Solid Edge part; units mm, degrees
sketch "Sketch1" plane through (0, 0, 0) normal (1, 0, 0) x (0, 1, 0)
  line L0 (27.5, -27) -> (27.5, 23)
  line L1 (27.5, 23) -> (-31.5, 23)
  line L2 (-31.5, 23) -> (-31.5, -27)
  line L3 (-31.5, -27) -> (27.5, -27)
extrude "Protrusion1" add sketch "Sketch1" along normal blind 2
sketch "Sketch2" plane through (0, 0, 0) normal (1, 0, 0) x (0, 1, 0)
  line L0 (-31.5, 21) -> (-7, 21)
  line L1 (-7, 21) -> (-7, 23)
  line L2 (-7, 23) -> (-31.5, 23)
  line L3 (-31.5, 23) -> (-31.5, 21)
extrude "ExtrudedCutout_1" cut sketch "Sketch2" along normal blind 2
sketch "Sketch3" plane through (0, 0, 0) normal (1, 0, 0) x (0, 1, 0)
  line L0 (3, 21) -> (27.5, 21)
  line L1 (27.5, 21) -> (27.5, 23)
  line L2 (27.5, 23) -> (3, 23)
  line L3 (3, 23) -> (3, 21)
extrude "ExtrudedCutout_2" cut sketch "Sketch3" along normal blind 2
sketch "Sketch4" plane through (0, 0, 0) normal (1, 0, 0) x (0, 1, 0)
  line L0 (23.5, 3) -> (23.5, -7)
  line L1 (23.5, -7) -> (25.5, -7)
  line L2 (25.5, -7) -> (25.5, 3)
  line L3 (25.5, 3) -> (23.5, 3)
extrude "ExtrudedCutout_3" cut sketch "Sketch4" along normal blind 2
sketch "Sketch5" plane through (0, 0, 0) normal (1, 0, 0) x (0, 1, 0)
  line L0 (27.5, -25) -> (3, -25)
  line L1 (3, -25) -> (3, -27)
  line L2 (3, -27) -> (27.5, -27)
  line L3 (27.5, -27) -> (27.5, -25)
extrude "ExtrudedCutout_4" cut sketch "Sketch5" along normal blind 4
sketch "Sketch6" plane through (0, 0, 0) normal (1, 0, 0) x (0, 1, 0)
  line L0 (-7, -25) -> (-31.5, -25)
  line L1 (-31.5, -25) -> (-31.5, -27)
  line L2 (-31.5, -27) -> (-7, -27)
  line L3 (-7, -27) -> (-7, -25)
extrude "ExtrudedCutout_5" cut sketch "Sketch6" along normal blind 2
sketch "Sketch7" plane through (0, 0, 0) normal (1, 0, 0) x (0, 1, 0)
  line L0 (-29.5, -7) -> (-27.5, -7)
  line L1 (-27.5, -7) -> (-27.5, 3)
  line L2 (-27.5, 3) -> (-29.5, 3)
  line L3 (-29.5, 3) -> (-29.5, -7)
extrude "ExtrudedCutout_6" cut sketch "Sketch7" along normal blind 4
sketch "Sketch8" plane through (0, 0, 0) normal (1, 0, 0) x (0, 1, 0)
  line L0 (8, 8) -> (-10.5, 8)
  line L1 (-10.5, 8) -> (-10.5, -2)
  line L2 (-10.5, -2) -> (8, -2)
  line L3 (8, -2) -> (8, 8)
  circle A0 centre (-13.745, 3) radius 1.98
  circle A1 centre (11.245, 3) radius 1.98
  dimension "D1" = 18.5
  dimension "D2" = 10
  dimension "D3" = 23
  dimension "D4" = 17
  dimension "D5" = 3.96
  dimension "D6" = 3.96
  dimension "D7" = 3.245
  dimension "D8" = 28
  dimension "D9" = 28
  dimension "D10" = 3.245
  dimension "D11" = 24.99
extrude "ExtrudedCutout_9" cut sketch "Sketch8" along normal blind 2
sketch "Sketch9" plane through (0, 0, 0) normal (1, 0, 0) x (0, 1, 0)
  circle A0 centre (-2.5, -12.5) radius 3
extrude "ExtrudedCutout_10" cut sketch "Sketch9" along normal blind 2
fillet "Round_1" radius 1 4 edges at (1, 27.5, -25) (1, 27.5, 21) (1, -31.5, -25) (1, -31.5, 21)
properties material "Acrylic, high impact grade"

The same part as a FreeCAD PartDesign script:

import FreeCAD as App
import Part
import Sketcher

V = App.Vector
Q = App.Units.Quantity


def edges_at(feature, points):
    """Names of the edges that pass closest to the given points."""
    edges = feature.Shape.Edges
    near = lambda p: min(range(len(edges)), key=lambda i: edges[i].distToShape(Part.Vertex(*p))[0])
    return sorted({f"Edge{near(p) + 1}" for p in points})

doc = App.newDocument("Part")
params = doc.addObject("Spreadsheet::Sheet", "Params")
for row, (alias, value) in enumerate([
    ("sketch1_width", "59 mm"),
    ("sketch1_height", "50 mm"),
    ("pad1_length", "2 mm"),
    ("sketch2_height", "2 mm"),
    ("sketch2_width", "24.5 mm"),
    ("pocket1_length", "2 mm"),
    ("sketch3_height", "2 mm"),
    ("sketch3_width", "24.5 mm"),
    ("pocket2_length", "2 mm"),
    ("sketch4_width", "2 mm"),
    ("sketch4_height", "10 mm"),
    ("pocket3_length", "2 mm"),
    ("sketch5_height", "2 mm"),
    ("sketch5_width", "24.5 mm"),
    ("pocket4_length", "4 mm"),
    ("sketch6_height", "2 mm"),
    ("sketch6_width", "24.5 mm"),
    ("pocket5_length", "2 mm"),
    ("sketch7_width", "2 mm"),
    ("sketch7_height", "10 mm"),
    ("pocket6_length", "4 mm"),
    ("sketch8_diameter", "3.96 mm"),
    ("sketch8_height", "10 mm"),
    ("sketch8_width", "18.5 mm"),
    ("pocket7_length", "2 mm"),
    ("sketch9_diameter", "6 mm"),
    ("pocket8_length", "2 mm"),
    ("fillet_radius", "1 mm"),
], start=1):
    params.set(f"A{row}", alias)
    params.set(f"B{row}", "=" + value)
    params.setAlias(f"B{row}", alias)

body = doc.addObject("PartDesign::Body", "Body")

sketch1 = doc.addObject("Sketcher::SketchObject", "Sketch")
body.addObject(sketch1)
sketch1.AttachmentSupport = (doc.YZ_Plane, [""])
sketch1.MapMode = "FlatFace"
sketch1.addGeometry([
    Part.LineSegment(V(-31.5, -27, 0), V(27.5, -27, 0)),
    Part.LineSegment(V(27.5, -27, 0), V(27.5, 23, 0)),
    Part.LineSegment(V(27.5, 23, 0), V(-31.5, 23, 0)),
    Part.LineSegment(V(-31.5, 23, 0), V(-31.5, -27, 0)),
], False)
sketch1.addConstraint([
    Sketcher.Constraint("Coincident", 0, 2, 1, 1),
    Sketcher.Constraint("Coincident", 1, 2, 2, 1),
    Sketcher.Constraint("Coincident", 2, 2, 3, 1),
    Sketcher.Constraint("Coincident", 3, 2, 0, 1),
    Sketcher.Constraint("Horizontal", 0),
    Sketcher.Constraint("Vertical", 1),
    Sketcher.Constraint("Horizontal", 2),
    Sketcher.Constraint("Vertical", 3),
    Sketcher.Constraint("DistanceX", 0, 1, 0, 2, Q("59 mm")),
    Sketcher.Constraint("DistanceY", 1, 1, 1, 2, Q("50 mm")),
    Sketcher.Constraint("DistanceY", 0, 2, -1, 1, Q("27 mm")),
    Sketcher.Constraint("DistanceX", -1, 1, 0, 2, Q("27.5 mm")),
])
sketch1.setExpression("Constraints[8]", "Params.sketch1_width")
sketch1.setExpression("Constraints[9]", "Params.sketch1_height")
pad1 = doc.addObject("PartDesign::Pad", "Pad")
body.addObject(pad1)
pad1.Profile = sketch1
pad1.setExpression("Length", "Params.pad1_length")

sketch2 = doc.addObject("Sketcher::SketchObject", "Sketch001")
body.addObject(sketch2)
sketch2.AttachmentSupport = (doc.YZ_Plane, [""])
sketch2.MapMode = "FlatFace"
sketch2.addGeometry([
    Part.LineSegment(V(-31.5, 23, 0), V(-31.5, 21, 0)),
    Part.LineSegment(V(-31.5, 21, 0), V(-7, 21, 0)),
    Part.LineSegment(V(-7, 21, 0), V(-7, 23, 0)),
    Part.LineSegment(V(-7, 23, 0), V(-31.5, 23, 0)),
], False)
sketch2.addConstraint([
    Sketcher.Constraint("Coincident", 0, 2, 1, 1),
    Sketcher.Constraint("Coincident", 1, 2, 2, 1),
    Sketcher.Constraint("Coincident", 2, 2, 3, 1),
    Sketcher.Constraint("Coincident", 3, 2, 0, 1),
    Sketcher.Constraint("Vertical", 0),
    Sketcher.Constraint("Horizontal", 1),
    Sketcher.Constraint("Vertical", 2),
    Sketcher.Constraint("Horizontal", 3),
    Sketcher.Constraint("DistanceY", 0, 2, 0, 1, Q("2 mm")),
    Sketcher.Constraint("DistanceX", 1, 1, 1, 2, Q("24.5 mm")),
    Sketcher.Constraint("DistanceY", -1, 1, 0, 2, Q("21 mm")),
    Sketcher.Constraint("DistanceX", 1, 2, -1, 1, Q("7 mm")),
])
sketch2.setExpression("Constraints[8]", "Params.sketch2_height")
sketch2.setExpression("Constraints[9]", "Params.sketch2_width")
pocket1 = doc.addObject("PartDesign::Pocket", "Pocket")
body.addObject(pocket1)
pocket1.Profile = sketch2
pocket1.setExpression("Length", "Params.pocket1_length")
pocket1.Reversed = True

sketch3 = doc.addObject("Sketcher::SketchObject", "Sketch002")
body.addObject(sketch3)
sketch3.AttachmentSupport = (doc.YZ_Plane, [""])
sketch3.MapMode = "FlatFace"
sketch3.addGeometry([
    Part.LineSegment(V(3, 23, 0), V(3, 21, 0)),
    Part.LineSegment(V(3, 21, 0), V(27.5, 21, 0)),
    Part.LineSegment(V(27.5, 21, 0), V(27.5, 23, 0)),
    Part.LineSegment(V(27.5, 23, 0), V(3, 23, 0)),
], False)
sketch3.addConstraint([
    Sketcher.Constraint("Coincident", 0, 2, 1, 1),
    Sketcher.Constraint("Coincident", 1, 2, 2, 1),
    Sketcher.Constraint("Coincident", 2, 2, 3, 1),
    Sketcher.Constraint("Coincident", 3, 2, 0, 1),
    Sketcher.Constraint("Vertical", 0),
    Sketcher.Constraint("Horizontal", 1),
    Sketcher.Constraint("Vertical", 2),
    Sketcher.Constraint("Horizontal", 3),
    Sketcher.Constraint("DistanceY", 0, 2, 0, 1, Q("2 mm")),
    Sketcher.Constraint("DistanceX", 1, 1, 1, 2, Q("24.5 mm")),
    Sketcher.Constraint("DistanceX", -1, 1, 0, 2, Q("3 mm")),
    Sketcher.Constraint("DistanceY", -1, 1, 0, 2, Q("21 mm")),
])
sketch3.setExpression("Constraints[8]", "Params.sketch3_height")
sketch3.setExpression("Constraints[9]", "Params.sketch3_width")
pocket2 = doc.addObject("PartDesign::Pocket", "Pocket001")
body.addObject(pocket2)
pocket2.Profile = sketch3
pocket2.setExpression("Length", "Params.pocket2_length")
pocket2.Reversed = True

sketch4 = doc.addObject("Sketcher::SketchObject", "Sketch003")
body.addObject(sketch4)
sketch4.AttachmentSupport = (doc.YZ_Plane, [""])
sketch4.MapMode = "FlatFace"
sketch4.addGeometry([
    Part.LineSegment(V(25.5, 3, 0), V(23.5, 3, 0)),
    Part.LineSegment(V(23.5, 3, 0), V(23.5, -7, 0)),
    Part.LineSegment(V(23.5, -7, 0), V(25.5, -7, 0)),
    Part.LineSegment(V(25.5, -7, 0), V(25.5, 3, 0)),
], False)
sketch4.addConstraint([
    Sketcher.Constraint("Coincident", 0, 2, 1, 1),
    Sketcher.Constraint("Coincident", 1, 2, 2, 1),
    Sketcher.Constraint("Coincident", 2, 2, 3, 1),
    Sketcher.Constraint("Coincident", 3, 2, 0, 1),
    Sketcher.Constraint("Horizontal", 0),
    Sketcher.Constraint("Vertical", 1),
    Sketcher.Constraint("Horizontal", 2),
    Sketcher.Constraint("Vertical", 3),
    Sketcher.Constraint("DistanceX", 0, 2, 0, 1, Q("2 mm")),
    Sketcher.Constraint("DistanceY", 1, 2, 1, 1, Q("10 mm")),
    Sketcher.Constraint("DistanceY", -1, 1, 0, 2, Q("3 mm")),
    Sketcher.Constraint("DistanceX", -1, 1, 0, 2, Q("23.5 mm")),
])
sketch4.setExpression("Constraints[8]", "Params.sketch4_width")
sketch4.setExpression("Constraints[9]", "Params.sketch4_height")
pocket3 = doc.addObject("PartDesign::Pocket", "Pocket002")
body.addObject(pocket3)
pocket3.Profile = sketch4
pocket3.setExpression("Length", "Params.pocket3_length")
pocket3.Reversed = True

sketch5 = doc.addObject("Sketcher::SketchObject", "Sketch004")
body.addObject(sketch5)
sketch5.AttachmentSupport = (doc.YZ_Plane, [""])
sketch5.MapMode = "FlatFace"
sketch5.addGeometry([
    Part.LineSegment(V(27.5, -27, 0), V(27.5, -25, 0)),
    Part.LineSegment(V(27.5, -25, 0), V(3, -25, 0)),
    Part.LineSegment(V(3, -25, 0), V(3, -27, 0)),
    Part.LineSegment(V(3, -27, 0), V(27.5, -27, 0)),
], False)
sketch5.addConstraint([
    Sketcher.Constraint("Coincident", 0, 2, 1, 1),
    Sketcher.Constraint("Coincident", 1, 2, 2, 1),
    Sketcher.Constraint("Coincident", 2, 2, 3, 1),
    Sketcher.Constraint("Coincident", 3, 2, 0, 1),
    Sketcher.Constraint("Vertical", 0),
    Sketcher.Constraint("Horizontal", 1),
    Sketcher.Constraint("Vertical", 2),
    Sketcher.Constraint("Horizontal", 3),
    Sketcher.Constraint("DistanceY", 0, 1, 0, 2, Q("2 mm")),
    Sketcher.Constraint("DistanceX", 1, 2, 1, 1, Q("24.5 mm")),
    Sketcher.Constraint("DistanceY", 0, 2, -1, 1, Q("25 mm")),
    Sketcher.Constraint("DistanceX", -1, 1, 1, 2, Q("3 mm")),
])
sketch5.setExpression("Constraints[8]", "Params.sketch5_height")
sketch5.setExpression("Constraints[9]", "Params.sketch5_width")
pocket4 = doc.addObject("PartDesign::Pocket", "Pocket003")
body.addObject(pocket4)
pocket4.Profile = sketch5
pocket4.setExpression("Length", "Params.pocket4_length")
pocket4.Reversed = True

sketch6 = doc.addObject("Sketcher::SketchObject", "Sketch005")
body.addObject(sketch6)
sketch6.AttachmentSupport = (doc.YZ_Plane, [""])
sketch6.MapMode = "FlatFace"
sketch6.addGeometry([
    Part.LineSegment(V(-7, -27, 0), V(-7, -25, 0)),
    Part.LineSegment(V(-7, -25, 0), V(-31.5, -25, 0)),
    Part.LineSegment(V(-31.5, -25, 0), V(-31.5, -27, 0)),
    Part.LineSegment(V(-31.5, -27, 0), V(-7, -27, 0)),
], False)
sketch6.addConstraint([
    Sketcher.Constraint("Coincident", 0, 2, 1, 1),
    Sketcher.Constraint("Coincident", 1, 2, 2, 1),
    Sketcher.Constraint("Coincident", 2, 2, 3, 1),
    Sketcher.Constraint("Coincident", 3, 2, 0, 1),
    Sketcher.Constraint("Vertical", 0),
    Sketcher.Constraint("Horizontal", 1),
    Sketcher.Constraint("Vertical", 2),
    Sketcher.Constraint("Horizontal", 3),
    Sketcher.Constraint("DistanceY", 0, 1, 0, 2, Q("2 mm")),
    Sketcher.Constraint("DistanceX", 1, 2, 1, 1, Q("24.5 mm")),
    Sketcher.Constraint("DistanceX", 0, 2, -1, 1, Q("7 mm")),
    Sketcher.Constraint("DistanceY", 0, 2, -1, 1, Q("25 mm")),
])
sketch6.setExpression("Constraints[8]", "Params.sketch6_height")
sketch6.setExpression("Constraints[9]", "Params.sketch6_width")
pocket5 = doc.addObject("PartDesign::Pocket", "Pocket004")
body.addObject(pocket5)
pocket5.Profile = sketch6
pocket5.setExpression("Length", "Params.pocket5_length")
pocket5.Reversed = True

sketch7 = doc.addObject("Sketcher::SketchObject", "Sketch006")
body.addObject(sketch7)
sketch7.AttachmentSupport = (doc.YZ_Plane, [""])
sketch7.MapMode = "FlatFace"
sketch7.addGeometry([
    Part.LineSegment(V(-29.5, 3, 0), V(-29.5, -7, 0)),
    Part.LineSegment(V(-29.5, -7, 0), V(-27.5, -7, 0)),
    Part.LineSegment(V(-27.5, -7, 0), V(-27.5, 3, 0)),
    Part.LineSegment(V(-27.5, 3, 0), V(-29.5, 3, 0)),
], False)
sketch7.addConstraint([
    Sketcher.Constraint("Coincident", 0, 2, 1, 1),
    Sketcher.Constraint("Coincident", 1, 2, 2, 1),
    Sketcher.Constraint("Coincident", 2, 2, 3, 1),
    Sketcher.Constraint("Coincident", 3, 2, 0, 1),
    Sketcher.Constraint("Vertical", 0),
    Sketcher.Constraint("Horizontal", 1),
    Sketcher.Constraint("Vertical", 2),
    Sketcher.Constraint("Horizontal", 3),
    Sketcher.Constraint("DistanceX", 1, 1, 1, 2, Q("2 mm")),
    Sketcher.Constraint("DistanceY", 0, 2, 0, 1, Q("10 mm")),
    Sketcher.Constraint("DistanceY", 0, 2, -1, 1, Q("7 mm")),
    Sketcher.Constraint("DistanceX", 0, 2, -1, 1, Q("29.5 mm")),
])
sketch7.setExpression("Constraints[8]", "Params.sketch7_width")
sketch7.setExpression("Constraints[9]", "Params.sketch7_height")
pocket6 = doc.addObject("PartDesign::Pocket", "Pocket005")
body.addObject(pocket6)
pocket6.Profile = sketch7
pocket6.setExpression("Length", "Params.pocket6_length")
pocket6.Reversed = True

sketch8 = doc.addObject("Sketcher::SketchObject", "Sketch007")
body.addObject(sketch8)
sketch8.AttachmentSupport = (doc.YZ_Plane, [""])
sketch8.MapMode = "FlatFace"
sketch8.addGeometry([
    Part.LineSegment(V(8, -2, 0), V(8, 8, 0)),
    Part.LineSegment(V(8, 8, 0), V(-10.5, 8, 0)),
    Part.LineSegment(V(-10.5, 8, 0), V(-10.5, -2, 0)),
    Part.LineSegment(V(-10.5, -2, 0), V(8, -2, 0)),
    Part.Circle(V(-13.745, 3, 0), V(0, 0, 1), 1.98),
    Part.Circle(V(11.245, 3, 0), V(0, 0, 1), 1.98),
], False)
sketch8.addConstraint([
    Sketcher.Constraint("Coincident", 0, 2, 1, 1),
    Sketcher.Constraint("Coincident", 1, 2, 2, 1),
    Sketcher.Constraint("Coincident", 2, 2, 3, 1),
    Sketcher.Constraint("Coincident", 3, 2, 0, 1),
    Sketcher.Constraint("Vertical", 0),
    Sketcher.Constraint("Horizontal", 1),
    Sketcher.Constraint("Vertical", 2),
    Sketcher.Constraint("Horizontal", 3),
    Sketcher.Constraint("Equal", 4, 5),
    Sketcher.Constraint("Horizontal", 4, 3, 5, 3),
    Sketcher.Constraint("Diameter", 4, Q("3.96 mm")),
    Sketcher.Constraint("DistanceY", 0, 1, 0, 2, Q("10 mm")),
    Sketcher.Constraint("DistanceX", 1, 2, 1, 1, Q("18.5 mm")),
    Sketcher.Constraint("DistanceY", -1, 1, 4, 3, Q("3 mm")),
    Sketcher.Constraint("DistanceX", -1, 1, 0, 2, Q("8 mm")),
    Sketcher.Constraint("DistanceY", -1, 1, 0, 2, Q("8 mm")),
    Sketcher.Constraint("DistanceX", 4, 3, 5, 3, Q("24.99 mm")),
    Sketcher.Constraint("DistanceX", 4, 3, -1, 1, Q("13.745 mm")),
])
sketch8.setExpression("Constraints[10]", "Params.sketch8_diameter")
sketch8.setExpression("Constraints[11]", "Params.sketch8_height")
sketch8.setExpression("Constraints[12]", "Params.sketch8_width")
pocket7 = doc.addObject("PartDesign::Pocket", "Pocket006")
body.addObject(pocket7)
pocket7.Profile = sketch8
pocket7.setExpression("Length", "Params.pocket7_length")
pocket7.Reversed = True

sketch9 = doc.addObject("Sketcher::SketchObject", "Sketch008")
body.addObject(sketch9)
sketch9.AttachmentSupport = (doc.YZ_Plane, [""])
sketch9.MapMode = "FlatFace"
sketch9.addGeometry(Part.Circle(V(-2.5, -12.5, 0), V(0, 0, 1), 3), False)
sketch9.addConstraint([
    Sketcher.Constraint("Diameter", 0, Q("6 mm")),
    Sketcher.Constraint("DistanceX", 0, 3, -1, 1, Q("2.5 mm")),
    Sketcher.Constraint("DistanceY", 0, 3, -1, 1, Q("12.5 mm")),
])
sketch9.setExpression("Constraints[0]", "Params.sketch9_diameter")
pocket8 = doc.addObject("PartDesign::Pocket", "Pocket007")
body.addObject(pocket8)
pocket8.Profile = sketch9
pocket8.setExpression("Length", "Params.pocket8_length")
pocket8.Reversed = True
doc.recompute()

fillet = doc.addObject("PartDesign::Fillet", "Fillet")
body.addObject(fillet)
fillet.Base = (pocket8, edges_at(pocket8, [
    (1, 27.5, -25),
    (1, 27.5, 21),
    (1, -31.5, -25),
    (1, -31.5, 21),
]))
fillet.setExpression("Radius", "Params.fillet_radius")

doc.recompute()
